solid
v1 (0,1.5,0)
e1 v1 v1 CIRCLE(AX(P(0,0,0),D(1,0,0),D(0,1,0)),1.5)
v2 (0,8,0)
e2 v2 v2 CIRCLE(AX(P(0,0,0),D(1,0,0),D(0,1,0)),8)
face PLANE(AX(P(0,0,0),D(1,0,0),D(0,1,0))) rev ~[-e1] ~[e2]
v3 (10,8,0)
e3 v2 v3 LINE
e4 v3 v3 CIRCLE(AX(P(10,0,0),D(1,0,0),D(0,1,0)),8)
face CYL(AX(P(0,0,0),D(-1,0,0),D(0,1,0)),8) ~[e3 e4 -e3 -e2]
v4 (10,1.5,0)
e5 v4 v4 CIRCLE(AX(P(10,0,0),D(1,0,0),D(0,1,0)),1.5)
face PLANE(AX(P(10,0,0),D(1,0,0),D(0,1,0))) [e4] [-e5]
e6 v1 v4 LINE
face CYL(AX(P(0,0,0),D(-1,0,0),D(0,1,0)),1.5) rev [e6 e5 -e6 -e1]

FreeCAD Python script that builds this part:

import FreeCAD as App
import Part
import Sketcher

V = App.Vector

doc = App.newDocument("Part")
body = doc.addObject("PartDesign::Body", "Body")

sketch1 = body.newObject("Sketcher::SketchObject", "Sketch")
sketch1.AttachmentSupport = (doc.getObject("YZ_Plane"), [""])
sketch1.MapMode = "FlatFace"
sketch1.addGeometry(Part.Circle(V(0, 0, 0), V(0, 0, 1), 8), False)
sketch1.addGeometry(Part.Circle(V(0, 0, 0), V(0, 0, 1), 1.5), False)
sketch1.addConstraint(Sketcher.Constraint("Coincident", 0, 3, -1, 1))
sketch1.addConstraint(Sketcher.Constraint("Coincident", 1, 3, -1, 1))
sketch1.addConstraint(Sketcher.Constraint("Diameter", 0, 16.0))
sketch1.addConstraint(Sketcher.Constraint("Diameter", 1, 3.0))
pad1 = body.newObject("PartDesign::Pad", "Pad")
pad1.Profile = sketch1
pad1.Length = 10

doc.recompute()
